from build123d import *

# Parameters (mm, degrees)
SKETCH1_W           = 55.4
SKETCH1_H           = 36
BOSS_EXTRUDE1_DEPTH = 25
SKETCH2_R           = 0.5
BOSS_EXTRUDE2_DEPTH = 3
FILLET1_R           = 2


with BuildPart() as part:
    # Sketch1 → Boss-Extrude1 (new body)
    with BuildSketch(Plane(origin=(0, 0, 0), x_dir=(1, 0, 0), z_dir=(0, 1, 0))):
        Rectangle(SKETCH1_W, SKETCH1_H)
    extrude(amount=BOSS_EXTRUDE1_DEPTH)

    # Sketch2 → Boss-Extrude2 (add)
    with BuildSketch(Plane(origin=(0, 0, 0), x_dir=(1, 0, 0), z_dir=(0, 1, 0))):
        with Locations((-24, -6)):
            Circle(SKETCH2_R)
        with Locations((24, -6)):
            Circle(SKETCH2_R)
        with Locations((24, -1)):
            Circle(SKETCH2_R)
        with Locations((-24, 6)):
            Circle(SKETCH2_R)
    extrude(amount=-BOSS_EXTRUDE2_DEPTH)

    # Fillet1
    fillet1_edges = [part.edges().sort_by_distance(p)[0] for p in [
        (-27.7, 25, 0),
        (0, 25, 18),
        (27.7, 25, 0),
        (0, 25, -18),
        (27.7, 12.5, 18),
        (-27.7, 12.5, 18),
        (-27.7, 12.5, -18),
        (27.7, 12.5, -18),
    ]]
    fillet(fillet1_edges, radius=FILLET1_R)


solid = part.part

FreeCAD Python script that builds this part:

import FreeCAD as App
import Part
import Sketcher
from FreeCAD import Vector
Q = App.Units.Quantity


def edges_at(feature, points):
    """Names of the edges that pass closest to the given points."""
    edges = feature.Shape.Edges
    near = lambda p: min(range(len(edges)), key=lambda i: edges[i].distToShape(Part.Vertex(*p))[0])
    return sorted({f"Edge{near(p) + 1}" for p in points})


def add_polygon(sketch, points):
    """Adds a closed chain of lines whose ends are joined by coincident constraints."""
    first, n = sketch.GeometryCount, len(points)
    for a, b in zip(points, points[1:] + points[:1]):
        sketch.addGeometry(Part.LineSegment(App.Vector(*a, 0), App.Vector(*b, 0)), False)
    for i in range(n):
        sketch.addConstraint(Sketcher.Constraint("Coincident", first + i, 2, first + (i + 1) % n, 1))

doc = App.newDocument("Part")
params = doc.addObject("Spreadsheet::Sheet", "Params")
for row, (alias, value) in enumerate([
    ("sketch1_height", "36 mm"),
    ("sketch1_width", "55.4 mm"),
    ("pad1_length", "25 mm"),
    ("sketch2_diameter", "1 mm"),
    ("pad2_length", "3 mm"),
    ("fillet_radius", "2 mm"),
], start=1):
    params.set(f"A{row}", alias)
    params.set(f"B{row}", "=" + value)
    params.setAlias(f"B{row}", alias)

body = doc.addObject("PartDesign::Body", "Body")

sketch1 = body.newObject("Sketcher::SketchObject", "Sketch")
sketch1.AttachmentSupport = (doc.getObject("XZ_Plane"), [""])
sketch1.MapMode = "FlatFace"
add_polygon(sketch1, [(-27.7, -18), (-27.7, 18), (27.7, 18), (27.7, -18)])
sketch1.addConstraint([
    Sketcher.Constraint("Vertical", 0),
    Sketcher.Constraint("Horizontal", 1),
    Sketcher.Constraint("Vertical", 2),
    Sketcher.Constraint("Horizontal", 3),
    Sketcher.Constraint("Symmetric", 0, 2, 2, 2, -1, 1),
    Sketcher.Constraint("DistanceY", 0, 1, 0, 2, Q("36 mm")),
    Sketcher.Constraint("DistanceX", 1, 1, 1, 2, Q("55.4 mm")),
])
sketch1.setExpression("Constraints[9]", "Params.sketch1_height")
sketch1.setExpression("Constraints[10]", "Params.sketch1_width")
pad1 = body.newObject("PartDesign::Pad", "Pad")
pad1.Profile = sketch1
pad1.setExpression("Length", "Params.pad1_length")
pad1.Reversed = True

sketch2 = body.newObject("Sketcher::SketchObject", "Sketch001")
sketch2.AttachmentSupport = (doc.getObject("XZ_Plane"), [""])
sketch2.MapMode = "FlatFace"
sketch2.addGeometry([
    Part.Circle(Vector(-24, 6, 0), Vector(0, 0, 1), 0.5),
    Part.Circle(Vector(24, 6, 0), Vector(0, 0, 1), 0.5),
    Part.Circle(Vector(24, 1, 0), Vector(0, 0, 1), 0.5),
    Part.Circle(Vector(-24, -6, 0), Vector(0, 0, 1), 0.5),
], False)
sketch2.addConstraint([
    Sketcher.Constraint("Equal", 0, 1),
    Sketcher.Constraint("Equal", 1, 2),
    Sketcher.Constraint("Equal", 2, 3),
    Sketcher.Constraint("Symmetric", 1, 3, 3, 3, -1, 1),
    Sketcher.Constraint("Symmetric", 0, 3, 1, 3, -2),
    Sketcher.Constraint("Vertical", 1, 3, 2, 3),
    Sketcher.Constraint("Diameter", 0, Q("1 mm")),
    Sketcher.Constraint("DistanceX", 0, 3, -1, 1, Q("24 mm")),
    Sketcher.Constraint("DistanceY", -1, 1, 0, 3, Q("6 mm")),
    Sketcher.Constraint("DistanceY", -1, 1, 2, 3, Q("1 mm")),
])
sketch2.setExpression("Constraints[6]", "Params.sketch2_diameter")
pad2 = body.newObject("PartDesign::Pad", "Pad001")
pad2.Profile = sketch2
pad2.setExpression("Length", "Params.pad2_length")
doc.recompute()

fillet = body.newObject("PartDesign::Fillet", "Fillet")
fillet.Base = (pad2, edges_at(pad2, [
    (-27.7, 25, 0),
    (0, 25, 18),
    (27.7, 25, 0),
    (0, 25, -18),
    (27.7, 12.5, 18),
    (-27.7, 12.5, 18),
    (-27.7, 12.5, -18),
    (27.7, 12.5, -18),
]))
fillet.setExpression("Radius", "Params.fillet_radius")

doc.recompute()
